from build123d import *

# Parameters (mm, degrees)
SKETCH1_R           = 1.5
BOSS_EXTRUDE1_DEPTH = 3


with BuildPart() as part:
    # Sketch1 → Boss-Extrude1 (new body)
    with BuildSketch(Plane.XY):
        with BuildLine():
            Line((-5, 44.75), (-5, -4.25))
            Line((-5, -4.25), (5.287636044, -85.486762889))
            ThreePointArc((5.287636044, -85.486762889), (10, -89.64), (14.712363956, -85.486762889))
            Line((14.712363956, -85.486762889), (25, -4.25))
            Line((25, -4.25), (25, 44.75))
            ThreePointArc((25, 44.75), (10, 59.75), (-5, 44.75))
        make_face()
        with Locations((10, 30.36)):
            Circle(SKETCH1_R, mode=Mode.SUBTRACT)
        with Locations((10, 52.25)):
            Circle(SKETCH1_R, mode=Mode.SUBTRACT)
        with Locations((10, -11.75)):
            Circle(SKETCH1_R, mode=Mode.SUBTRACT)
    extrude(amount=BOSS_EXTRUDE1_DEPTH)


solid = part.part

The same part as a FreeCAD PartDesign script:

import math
import FreeCAD as App
import Part
import Sketcher

V = App.Vector
Q = App.Units.Quantity

doc = App.newDocument("Part")
body = doc.addObject("PartDesign::Body", "Body")

# Sketch on XY plane
sketch1 = doc.addObject("Sketcher::SketchObject", "Sketch")
body.addObject(sketch1)
sketch1.AttachmentSupport = (doc.XY_Plane, [""])
sketch1.MapMode = "FlatFace"
sketch1.addGeometry([
    Part.LineSegment(V(-5, 44.75, 0), V(-5, -4.25, 0)),  # 0
    Part.LineSegment(V(-5, -4.25, 0), V(5.287636, -85.486763, 0)),  # 1
    Part.ArcOfCircle(Part.Circle(V(10, -84.89, 0), V(0, 0, 1), 4.75), math.radians(-172.782613), math.radians(-7.217387)),  # 2
    Part.LineSegment(V(14.712364, -85.486763, 0), V(25, -4.25, 0)),  # 3
    Part.LineSegment(V(25, -4.25, 0), V(25, 44.75, 0)),  # 4
    Part.ArcOfCircle(Part.Circle(V(10, 44.75, 0), V(0, 0, 1), 15), math.radians(0), math.radians(180)),  # 5
    Part.Circle(V(10, -11.75, 0), V(0, 0, 1), 1.5),  # 6
    Part.Circle(V(10, 30.36, 0), V(0, 0, 1), 1.5),  # 7
    Part.Circle(V(10, 52.25, 0), V(0, 0, 1), 1.5),  # 8
], False)
sketch1.addConstraint([
    Sketcher.Constraint("Coincident", 0, 2, 1, 1),
    Sketcher.Constraint("Tangent", 1, 2, 2, 1),
    Sketcher.Constraint("Tangent", 2, 2, 3, 1),
    Sketcher.Constraint("Coincident", 3, 2, 4, 1),
    Sketcher.Constraint("Tangent", 4, 2, 5, 1),
    Sketcher.Constraint("Tangent", 5, 2, 0, 1),
    Sketcher.Constraint("Vertical", 0),
    Sketcher.Constraint("Vertical", 4),
    Sketcher.Constraint("Equal", 6, 7),
    Sketcher.Constraint("Equal", 7, 8),
    Sketcher.Constraint("Horizontal", 1, 2, 2, 2),
    Sketcher.Constraint("Horizontal", 0, 2, 3, 2),
    Sketcher.Constraint("Vertical", 5, 3, 6, 3),
    Sketcher.Constraint("Vertical", 6, 3, 7, 3),
    Sketcher.Constraint("Vertical", 7, 3, 8, 3),
    Sketcher.Constraint("Diameter", 6, Q("3 mm")),
    Sketcher.Constraint("Radius", 5, Q("15 mm")),
    Sketcher.Constraint("DistanceY", 0, 2, 0, 1, Q("49 mm")),
    Sketcher.Constraint("Radius", 2, Q("4.75 mm")),
    Sketcher.Constraint("DistanceX", -1, 1, 2, 3, Q("10 mm")),
    Sketcher.Constraint("DistanceY", 6, 3, 8, 3, Q("64 mm")),
    Sketcher.Constraint("DistanceY", 6, 3, 5, 3, Q("56.5 mm")),
    Sketcher.Constraint("DistanceY", 2, 3, -1, 1, Q("84.89 mm")),
    Sketcher.Constraint("DistanceY", -1, 1, 5, 3, Q("44.75 mm")),
    Sketcher.Constraint("DistanceY", -1, 1, 7, 3, Q("30.36 mm")),
])
pad1 = doc.addObject("PartDesign::Pad", "Pad")
body.addObject(pad1)
pad1.Profile = sketch1
pad1.Length = 3

doc.recompute()
